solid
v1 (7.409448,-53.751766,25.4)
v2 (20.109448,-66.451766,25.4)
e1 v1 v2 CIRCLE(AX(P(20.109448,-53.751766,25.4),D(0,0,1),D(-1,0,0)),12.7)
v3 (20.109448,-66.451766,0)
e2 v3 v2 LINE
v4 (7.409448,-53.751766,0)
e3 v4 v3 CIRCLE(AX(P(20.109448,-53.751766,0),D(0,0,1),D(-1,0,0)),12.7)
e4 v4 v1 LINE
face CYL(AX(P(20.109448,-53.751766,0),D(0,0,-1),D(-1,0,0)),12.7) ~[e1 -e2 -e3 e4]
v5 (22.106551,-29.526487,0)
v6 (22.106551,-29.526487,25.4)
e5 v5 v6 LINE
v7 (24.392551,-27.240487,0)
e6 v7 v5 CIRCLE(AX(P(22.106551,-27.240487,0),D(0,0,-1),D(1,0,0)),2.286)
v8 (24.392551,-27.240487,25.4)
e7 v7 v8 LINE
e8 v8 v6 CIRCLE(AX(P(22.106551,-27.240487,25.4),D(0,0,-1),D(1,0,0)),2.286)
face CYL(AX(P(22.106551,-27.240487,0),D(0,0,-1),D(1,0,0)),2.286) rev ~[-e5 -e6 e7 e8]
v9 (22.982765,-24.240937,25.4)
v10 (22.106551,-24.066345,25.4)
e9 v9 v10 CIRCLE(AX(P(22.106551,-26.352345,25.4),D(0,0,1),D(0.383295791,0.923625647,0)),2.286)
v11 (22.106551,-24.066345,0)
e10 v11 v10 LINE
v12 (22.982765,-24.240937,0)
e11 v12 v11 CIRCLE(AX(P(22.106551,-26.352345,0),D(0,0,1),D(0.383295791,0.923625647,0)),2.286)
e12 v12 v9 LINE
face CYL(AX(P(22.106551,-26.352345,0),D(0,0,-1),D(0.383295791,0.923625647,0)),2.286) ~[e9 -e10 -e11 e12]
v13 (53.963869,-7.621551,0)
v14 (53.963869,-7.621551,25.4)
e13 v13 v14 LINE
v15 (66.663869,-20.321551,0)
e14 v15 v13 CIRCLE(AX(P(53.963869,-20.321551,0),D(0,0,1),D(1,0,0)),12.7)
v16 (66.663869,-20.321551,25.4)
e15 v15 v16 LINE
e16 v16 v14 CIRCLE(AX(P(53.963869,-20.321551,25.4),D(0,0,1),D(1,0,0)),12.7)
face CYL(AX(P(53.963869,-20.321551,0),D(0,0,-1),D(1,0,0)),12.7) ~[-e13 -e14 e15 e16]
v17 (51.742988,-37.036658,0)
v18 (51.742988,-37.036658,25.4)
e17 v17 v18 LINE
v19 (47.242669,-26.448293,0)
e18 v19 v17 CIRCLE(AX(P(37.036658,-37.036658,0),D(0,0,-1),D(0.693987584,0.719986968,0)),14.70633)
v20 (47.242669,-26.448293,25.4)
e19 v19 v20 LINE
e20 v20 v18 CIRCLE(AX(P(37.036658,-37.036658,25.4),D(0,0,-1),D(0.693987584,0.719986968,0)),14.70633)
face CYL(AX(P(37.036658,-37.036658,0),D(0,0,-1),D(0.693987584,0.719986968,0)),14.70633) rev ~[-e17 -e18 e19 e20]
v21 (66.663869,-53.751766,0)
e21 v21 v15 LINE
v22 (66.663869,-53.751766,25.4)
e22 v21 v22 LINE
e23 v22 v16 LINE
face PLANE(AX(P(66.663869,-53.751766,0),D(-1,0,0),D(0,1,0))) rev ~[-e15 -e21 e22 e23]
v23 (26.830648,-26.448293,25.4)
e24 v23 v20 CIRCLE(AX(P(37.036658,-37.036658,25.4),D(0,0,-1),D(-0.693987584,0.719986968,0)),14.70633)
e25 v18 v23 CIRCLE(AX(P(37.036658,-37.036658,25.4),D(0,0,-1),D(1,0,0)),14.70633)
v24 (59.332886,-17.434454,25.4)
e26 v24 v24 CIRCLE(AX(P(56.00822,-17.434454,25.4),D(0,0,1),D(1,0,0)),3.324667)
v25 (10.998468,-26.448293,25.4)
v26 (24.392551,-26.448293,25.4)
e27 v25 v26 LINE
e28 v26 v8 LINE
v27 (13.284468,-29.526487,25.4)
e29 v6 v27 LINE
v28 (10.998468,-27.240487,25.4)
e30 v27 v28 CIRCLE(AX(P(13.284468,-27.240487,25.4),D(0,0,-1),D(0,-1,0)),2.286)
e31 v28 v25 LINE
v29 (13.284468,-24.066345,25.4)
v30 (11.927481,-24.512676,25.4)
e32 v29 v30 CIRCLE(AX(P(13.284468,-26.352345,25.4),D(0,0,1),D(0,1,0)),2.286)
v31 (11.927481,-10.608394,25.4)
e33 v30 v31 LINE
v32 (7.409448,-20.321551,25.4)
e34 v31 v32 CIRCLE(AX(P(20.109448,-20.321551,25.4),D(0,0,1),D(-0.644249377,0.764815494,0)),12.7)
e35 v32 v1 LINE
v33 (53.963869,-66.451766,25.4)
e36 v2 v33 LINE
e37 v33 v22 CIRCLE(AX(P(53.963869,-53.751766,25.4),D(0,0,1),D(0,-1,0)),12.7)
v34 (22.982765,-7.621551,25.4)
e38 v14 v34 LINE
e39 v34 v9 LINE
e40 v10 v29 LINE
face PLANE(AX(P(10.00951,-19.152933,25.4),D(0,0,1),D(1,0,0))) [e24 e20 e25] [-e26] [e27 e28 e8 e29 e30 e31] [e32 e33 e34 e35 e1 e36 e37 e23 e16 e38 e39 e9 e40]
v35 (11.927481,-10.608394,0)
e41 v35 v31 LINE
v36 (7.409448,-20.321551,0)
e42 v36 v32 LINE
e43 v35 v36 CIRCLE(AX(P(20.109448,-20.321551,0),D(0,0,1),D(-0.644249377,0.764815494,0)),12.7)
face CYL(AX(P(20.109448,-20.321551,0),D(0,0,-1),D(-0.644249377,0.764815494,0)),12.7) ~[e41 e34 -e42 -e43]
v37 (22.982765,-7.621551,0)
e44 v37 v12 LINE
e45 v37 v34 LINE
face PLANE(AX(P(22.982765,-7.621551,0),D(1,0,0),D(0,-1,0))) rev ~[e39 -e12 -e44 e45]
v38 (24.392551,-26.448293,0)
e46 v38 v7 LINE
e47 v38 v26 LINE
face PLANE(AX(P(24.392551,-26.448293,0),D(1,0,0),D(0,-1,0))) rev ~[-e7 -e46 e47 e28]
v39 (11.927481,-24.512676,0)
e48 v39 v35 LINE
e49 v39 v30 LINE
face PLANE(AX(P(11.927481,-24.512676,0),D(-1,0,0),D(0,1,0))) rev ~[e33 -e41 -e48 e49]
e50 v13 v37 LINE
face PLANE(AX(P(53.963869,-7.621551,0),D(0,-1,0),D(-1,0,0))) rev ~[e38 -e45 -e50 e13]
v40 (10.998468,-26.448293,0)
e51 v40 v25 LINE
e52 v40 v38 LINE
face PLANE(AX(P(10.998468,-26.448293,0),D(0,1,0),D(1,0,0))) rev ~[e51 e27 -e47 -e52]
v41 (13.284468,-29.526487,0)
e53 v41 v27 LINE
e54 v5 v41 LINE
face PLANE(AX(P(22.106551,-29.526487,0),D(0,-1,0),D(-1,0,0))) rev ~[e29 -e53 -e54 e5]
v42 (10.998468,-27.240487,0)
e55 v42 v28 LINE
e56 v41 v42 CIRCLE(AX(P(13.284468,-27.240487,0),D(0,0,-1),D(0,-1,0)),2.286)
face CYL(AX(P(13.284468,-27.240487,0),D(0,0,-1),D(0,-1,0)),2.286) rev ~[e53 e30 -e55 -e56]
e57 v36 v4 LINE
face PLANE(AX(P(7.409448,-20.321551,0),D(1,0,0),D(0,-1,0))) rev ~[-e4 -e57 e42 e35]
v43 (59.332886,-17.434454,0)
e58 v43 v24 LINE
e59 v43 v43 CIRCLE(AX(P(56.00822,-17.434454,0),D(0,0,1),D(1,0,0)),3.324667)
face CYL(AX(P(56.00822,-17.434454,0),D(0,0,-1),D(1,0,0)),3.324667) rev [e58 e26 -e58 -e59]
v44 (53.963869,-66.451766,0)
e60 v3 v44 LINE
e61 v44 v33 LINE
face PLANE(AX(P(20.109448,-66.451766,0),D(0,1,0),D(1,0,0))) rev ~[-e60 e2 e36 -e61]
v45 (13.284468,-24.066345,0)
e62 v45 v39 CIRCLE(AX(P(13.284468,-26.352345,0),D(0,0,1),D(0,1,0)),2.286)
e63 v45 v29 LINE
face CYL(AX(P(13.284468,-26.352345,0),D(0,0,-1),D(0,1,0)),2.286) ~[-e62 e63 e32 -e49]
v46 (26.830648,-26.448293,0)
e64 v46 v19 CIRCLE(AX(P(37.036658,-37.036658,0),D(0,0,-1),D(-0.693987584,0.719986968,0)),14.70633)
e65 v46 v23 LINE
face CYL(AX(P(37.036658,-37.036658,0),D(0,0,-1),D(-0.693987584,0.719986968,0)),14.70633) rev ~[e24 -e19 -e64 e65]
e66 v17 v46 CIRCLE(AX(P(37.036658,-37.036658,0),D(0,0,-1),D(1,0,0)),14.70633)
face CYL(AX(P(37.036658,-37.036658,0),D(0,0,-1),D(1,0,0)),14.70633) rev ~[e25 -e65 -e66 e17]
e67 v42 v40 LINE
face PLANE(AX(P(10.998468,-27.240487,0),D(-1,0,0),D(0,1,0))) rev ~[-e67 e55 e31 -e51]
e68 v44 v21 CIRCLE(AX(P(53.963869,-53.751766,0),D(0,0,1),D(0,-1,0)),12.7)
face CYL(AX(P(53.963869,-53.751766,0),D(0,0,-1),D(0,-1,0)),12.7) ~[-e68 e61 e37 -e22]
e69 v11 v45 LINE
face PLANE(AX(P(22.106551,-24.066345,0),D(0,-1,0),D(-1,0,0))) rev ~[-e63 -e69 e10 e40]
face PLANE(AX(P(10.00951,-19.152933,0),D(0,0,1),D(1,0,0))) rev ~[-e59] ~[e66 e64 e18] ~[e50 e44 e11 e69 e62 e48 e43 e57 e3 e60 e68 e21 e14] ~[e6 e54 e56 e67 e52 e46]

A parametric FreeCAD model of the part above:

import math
import FreeCAD as App
import Part
import Sketcher
from FreeCAD import Vector
Q = App.Units.Quantity

doc = App.newDocument("Part")
body = doc.addObject("PartDesign::Body", "Body")

sketch1 = doc.addObject("Sketcher::SketchObject", "Sketch")
body.addObject(sketch1)
sketch1.AttachmentSupport = (doc.XY_Plane, [""])
sketch1.MapMode = "FlatFace"
sketch1.addGeometry([
    Part.LineSegment(Vector(7.4, -20.3, 0), Vector(7.4, -53.8, 0)),
    Part.ArcOfCircle(Part.Circle(Vector(20.1, -53.8, 0), Vector(0, 0, 1), 12.7), math.radians(180), math.radians(270)),
    Part.LineSegment(Vector(20.1, -66.5, 0), Vector(54, -66.5, 0)),
    Part.ArcOfCircle(Part.Circle(Vector(54, -53.8, 0), Vector(0, 0, 1), 12.7), math.radians(-90), math.radians(0)),
    Part.LineSegment(Vector(66.7, -53.8, 0), Vector(66.7, -20.3, 0)),
    Part.ArcOfCircle(Part.Circle(Vector(54, -20.3, 0), Vector(0, 0, 1), 12.7), math.radians(0), math.radians(90)),
    Part.LineSegment(Vector(54, -7.6, 0), Vector(23, -7.6, 0)),
    Part.LineSegment(Vector(23, -7.6, 0), Vector(23, -24.2, 0)),
    Part.ArcOfCircle(Part.Circle(Vector(22.1, -26.4, 0), Vector(0, 0, 1), 2.3), math.radians(67), math.radians(90)),
    Part.LineSegment(Vector(22.1, -24.1, 0), Vector(13.3, -24.1, 0)),
    Part.ArcOfCircle(Part.Circle(Vector(13.3, -26.4, 0), Vector(0, 0, 1), 2.3), math.radians(90), math.radians(126)),
    Part.LineSegment(Vector(11.9, -24.5, 0), Vector(11.9, -10.6, 0)),
    Part.ArcOfCircle(Part.Circle(Vector(20.1, -20.3, 0), Vector(0, 0, 1), 12.7), math.radians(130), math.radians(180)),
    Part.ArcOfCircle(Part.Circle(Vector(37, -37, 0), Vector(0, 0, 1), 14.7), math.radians(0), math.radians(46)),
    Part.ArcOfCircle(Part.Circle(Vector(37, -37, 0), Vector(0, 0, 1), 14.7), math.radians(134), math.radians(360)),
    Part.ArcOfCircle(Part.Circle(Vector(37, -37, 0), Vector(0, 0, 1), 14.7), math.radians(46), math.radians(134)),
    Part.LineSegment(Vector(11, -27.2, 0), Vector(11, -26.4, 0)),
    Part.LineSegment(Vector(11, -26.4, 0), Vector(24.4, -26.4, 0)),
    Part.LineSegment(Vector(24.4, -26.4, 0), Vector(24.4, -27.2, 0)),
    Part.ArcOfCircle(Part.Circle(Vector(22.1, -27.2, 0), Vector(0, 0, 1), 2.3), math.radians(-90), math.radians(0)),
    Part.LineSegment(Vector(22.1, -29.5, 0), Vector(13.3, -29.5, 0)),
    Part.ArcOfCircle(Part.Circle(Vector(13.3, -27.2, 0), Vector(0, 0, 1), 2.3), math.radians(180), math.radians(270)),
    Part.Circle(Vector(56, -17.4, 0), Vector(0, 0, 1), 3.3),
], False)
sketch1.addConstraint([
    Sketcher.Constraint("Tangent", 0, 2, 1, 1),
    Sketcher.Constraint("Tangent", 1, 2, 2, 1),
    Sketcher.Constraint("Tangent", 2, 2, 3, 1),
    Sketcher.Constraint("Tangent", 3, 2, 4, 1),
    Sketcher.Constraint("Tangent", 4, 2, 5, 1),
    Sketcher.Constraint("Tangent", 5, 2, 6, 1),
    Sketcher.Constraint("Coincident", 6, 2, 7, 1),
    Sketcher.Constraint("Coincident", 7, 2, 8, 1),
    Sketcher.Constraint("Tangent", 8, 2, 9, 1),
    Sketcher.Constraint("Tangent", 9, 2, 10, 1),
    Sketcher.Constraint("Coincident", 10, 2, 11, 1),
    Sketcher.Constraint("Coincident", 11, 2, 12, 1),
    Sketcher.Constraint("Tangent", 12, 2, 0, 1),
    Sketcher.Constraint("Tangent", 13, 1, 14, 2),
    Sketcher.Constraint("Tangent", 14, 1, 15, 2),
    Sketcher.Constraint("Tangent", 15, 1, 13, 2),
    Sketcher.Constraint("Coincident", 16, 2, 17, 1),
    Sketcher.Constraint("Coincident", 17, 2, 18, 1),
    Sketcher.Constraint("Tangent", 18, 2, 19, 2),
    Sketcher.Constraint("Tangent", 19, 1, 20, 1),
    Sketcher.Constraint("Tangent", 20, 2, 21, 2),
    Sketcher.Constraint("Tangent", 21, 1, 16, 1),
    Sketcher.Constraint("Vertical", 0),
    Sketcher.Constraint("Horizontal", 2),
    Sketcher.Constraint("Vertical", 4),
    Sketcher.Constraint("Horizontal", 6),
    Sketcher.Constraint("Vertical", 7),
    Sketcher.Constraint("Horizontal", 9),
    Sketcher.Constraint("Vertical", 11),
    Sketcher.Constraint("Vertical", 16),
    Sketcher.Constraint("Horizontal", 17),
    Sketcher.Constraint("Vertical", 18),
    Sketcher.Constraint("Horizontal", 20),
    Sketcher.Constraint("Equal", 1, 3),
    Sketcher.Constraint("Equal", 3, 5),
    Sketcher.Constraint("Equal", 8, 10),
    Sketcher.Constraint("Equal", 5, 12),
    Sketcher.Constraint("Equal", 10, 19),
    Sketcher.Constraint("Equal", 19, 21),
    Sketcher.Constraint("Horizontal", 5, 3, 12, 3),
    Sketcher.Constraint("Horizontal", 15, 3, 13, 1),
    Sketcher.Constraint("Horizontal", 14, 1, 15, 1),
    Sketcher.Constraint("Horizontal", 15, 1, 16, 2),
    Sketcher.Constraint("Vertical", 8, 3, 19, 3),
    Sketcher.Constraint("Vertical", 10, 3, 21, 3),
    Sketcher.Constraint("Radius", 1, Q("0.5 in")),
    Sketcher.Constraint("Radius", 8, Q("0.09 in")),
    Sketcher.Constraint("Radius", 13, Q("14.70633 mm")),
    Sketcher.Constraint("Diameter", 22, Q("6.649333 mm")),
    Sketcher.Constraint("DistanceX", 10, 3, 1, 3, Q("0.2687 in")),
    Sketcher.Constraint("DistanceX", 2, 1, 2, 2, Q("33.854421 mm")),
    Sketcher.Constraint("DistanceY", 11, 1, 11, 2, Q("13.904281 mm")),
    Sketcher.Constraint("DistanceX", 12, 3, 14, 1, Q("6.7212 mm")),
    Sketcher.Constraint("DistanceX", 15, 1, 5, 3, Q("6.7212 mm")),
    Sketcher.Constraint("DistanceX", 6, 2, 6, 1, Q("30.981104 mm")),
    Sketcher.Constraint("DistanceX", 9, 2, 9, 1, Q("8.822083 mm")),
    Sketcher.Constraint("DistanceY", 0, 2, 0, 1, Q("33.430214 mm")),
    Sketcher.Constraint("DistanceY", 7, 2, 7, 1, Q("16.619386 mm")),
    Sketcher.Constraint("DistanceY", 16, 1, 16, 2, Q("0.792194 mm")),
    Sketcher.Constraint("DistanceX", -1, 1, 1, 3, Q("20.109448 mm")),
    Sketcher.Constraint("DistanceY", 5, 3, -1, 1, Q("20.321551 mm")),
    Sketcher.Constraint("DistanceY", 13, 3, -1, 1, Q("37.036658 mm")),
    Sketcher.Constraint("DistanceX", -1, 1, 22, 3, Q("56.00822 mm")),
    Sketcher.Constraint("DistanceY", 8, 3, 22, 3, Q("8.917892 mm")),
])
pad1 = doc.addObject("PartDesign::Pad", "Pad")
body.addObject(pad1)
pad1.Profile = sketch1
pad1.Length = Q("1 in")

doc.recompute()
